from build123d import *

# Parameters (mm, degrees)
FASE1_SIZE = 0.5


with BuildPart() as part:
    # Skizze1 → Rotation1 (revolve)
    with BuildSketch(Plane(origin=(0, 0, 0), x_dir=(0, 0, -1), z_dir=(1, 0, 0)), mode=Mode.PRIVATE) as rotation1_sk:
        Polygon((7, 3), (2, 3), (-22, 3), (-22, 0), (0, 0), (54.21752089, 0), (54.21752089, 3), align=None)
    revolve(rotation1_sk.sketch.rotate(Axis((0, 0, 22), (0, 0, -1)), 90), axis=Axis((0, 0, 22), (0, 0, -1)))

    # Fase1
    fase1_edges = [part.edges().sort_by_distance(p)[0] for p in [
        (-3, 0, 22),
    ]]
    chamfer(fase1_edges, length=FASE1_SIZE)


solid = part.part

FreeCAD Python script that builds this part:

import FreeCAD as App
import Part
import Sketcher

V = App.Vector


def edges_at(feature, points):
    """Names of the edges that pass closest to the given points."""
    edges = feature.Shape.Edges
    near = lambda p: min(range(len(edges)), key=lambda i: edges[i].distToShape(Part.Vertex(*p))[0])
    return sorted({f"Edge{near(p) + 1}" for p in points})

doc = App.newDocument("Part")
body = doc.addObject("PartDesign::Body", "Body")

# Sketch on YZ plane
sketch1 = doc.addObject("Sketcher::SketchObject", "Sketch")
body.addObject(sketch1)
sketch1.AttachmentSupport = (doc.YZ_Plane, [""])
sketch1.MapMode = "FlatFace"
sketch1.addGeometry([
    Part.LineSegment(V(3, 22, 0), V(0, 22, 0)),
    Part.LineSegment(V(0, 22, 0), V(0, -54.217521, 0)),
    Part.LineSegment(V(0, -54.217521, 0), V(3, -54.217521, 0)),
    Part.LineSegment(V(3, -54.217521, 0), V(3, 22, 0)),
], False)
sketch1.addConstraint([
    Sketcher.Constraint("Coincident", 0, 2, 1, 1),
    Sketcher.Constraint("Coincident", 1, 2, 2, 1),
    Sketcher.Constraint("Coincident", 2, 2, 3, 1),
    Sketcher.Constraint("Coincident", 3, 2, 0, 1),
    Sketcher.Constraint("Horizontal", 0),
    Sketcher.Constraint("Vertical", 1),
    Sketcher.Constraint("Horizontal", 2),
    Sketcher.Constraint("Vertical", 3),
    Sketcher.Constraint("PointOnObject", 0, 2, -2),
    Sketcher.Constraint("DistanceX", 0, 2, 0, 1, 3.0),
    Sketcher.Constraint("DistanceY", -1, 1, 0, 2, 22.0),
    Sketcher.Constraint("DistanceY", 1, 2, 1, 1, 76.217521),
])
revolution = doc.addObject("PartDesign::Revolution", "Revolution")
body.addObject(revolution)
revolution.Profile = sketch1
revolution.ReferenceAxis = (sketch1, ["V_Axis"])
revolution.Angle = 360
doc.recompute()

chamfer = doc.addObject("PartDesign::Chamfer", "Chamfer")
body.addObject(chamfer)
chamfer.Base = (revolution, edges_at(revolution, [(-3, 0, 22)]))
chamfer.Size = 0.5

doc.recompute()
